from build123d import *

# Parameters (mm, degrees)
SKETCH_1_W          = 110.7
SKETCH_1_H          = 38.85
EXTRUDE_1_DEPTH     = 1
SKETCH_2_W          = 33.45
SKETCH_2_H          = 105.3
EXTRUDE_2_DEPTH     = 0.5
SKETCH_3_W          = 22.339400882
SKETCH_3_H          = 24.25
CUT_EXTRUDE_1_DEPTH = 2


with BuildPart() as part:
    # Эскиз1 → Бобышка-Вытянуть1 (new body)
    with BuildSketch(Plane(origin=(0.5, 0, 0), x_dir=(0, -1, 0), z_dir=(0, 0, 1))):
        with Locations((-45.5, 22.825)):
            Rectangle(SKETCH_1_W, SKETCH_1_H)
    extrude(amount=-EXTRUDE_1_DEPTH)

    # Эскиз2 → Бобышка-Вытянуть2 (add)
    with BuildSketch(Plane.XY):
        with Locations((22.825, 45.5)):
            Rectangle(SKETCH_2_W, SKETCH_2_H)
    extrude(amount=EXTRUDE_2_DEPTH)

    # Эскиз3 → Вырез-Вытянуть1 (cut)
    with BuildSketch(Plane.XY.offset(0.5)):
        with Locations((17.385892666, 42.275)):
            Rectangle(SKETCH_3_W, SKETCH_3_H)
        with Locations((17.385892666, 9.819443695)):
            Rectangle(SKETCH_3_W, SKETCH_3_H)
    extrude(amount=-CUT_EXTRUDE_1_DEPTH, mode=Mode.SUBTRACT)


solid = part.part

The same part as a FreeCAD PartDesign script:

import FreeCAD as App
import Part
import Sketcher
Q = App.Units.Quantity


def add_polygon(sketch, points):
    """Adds a closed chain of lines whose ends are joined by coincident constraints."""
    first, n = sketch.GeometryCount, len(points)
    for a, b in zip(points, points[1:] + points[:1]):
        sketch.addGeometry(Part.LineSegment(App.Vector(*a, 0), App.Vector(*b, 0)), False)
    for i in range(n):
        sketch.addConstraint(Sketcher.Constraint("Coincident", first + i, 2, first + (i + 1) % n, 1))

doc = App.newDocument("Part")
params = doc.addObject("Spreadsheet::Sheet", "Params")
for row, (alias, value) in enumerate([
    ("sketch1_height", "110.7 mm"),
    ("sketch1_width", "38.85 mm"),
    ("pad1_length", "1 mm"),
    ("sketch2_height", "105.3 mm"),
    ("sketch2_width", "33.45 mm"),
    ("pad2_length", "0.5 mm"),
    ("sketch3_height", "24.25 mm"),
    ("pocket1_length", "2 mm"),
], start=1):
    params.set(f"A{row}", alias)
    params.set(f"B{row}", "=" + value)
    params.setAlias(f"B{row}", alias)

body = doc.addObject("PartDesign::Body", "Body")

sketch1 = doc.addObject("Sketcher::SketchObject", "Sketch")
body.addObject(sketch1)
sketch1.AttachmentSupport = (doc.XY_Plane, [""])
sketch1.MapMode = "FlatFace"
add_polygon(sketch1, [(43, 101), (4, 101), (4, -10), (43, -10)])
sketch1.addConstraint(Sketcher.Constraint("Horizontal", 0))
sketch1.addConstraint(Sketcher.Constraint("Vertical", 1))
sketch1.addConstraint(Sketcher.Constraint("Horizontal", 2))
sketch1.addConstraint(Sketcher.Constraint("Vertical", 3))
sketch1.addConstraint(Sketcher.Constraint("DistanceY", 1, 2, 1, 1, Q("110.7 mm")))
sketch1.addConstraint(Sketcher.Constraint("DistanceX", 0, 2, 0, 1, Q("38.85 mm")))
sketch1.addConstraint(Sketcher.Constraint("DistanceX", -1, 1, 0, 2, Q("3.9 mm")))
sketch1.addConstraint(Sketcher.Constraint("DistanceY", -1, 1, 0, 2, Q("100.85 mm")))
sketch1.setExpression("Constraints[8]", "Params.sketch1_height")
sketch1.setExpression("Constraints[9]", "Params.sketch1_width")
pad1 = doc.addObject("PartDesign::Pad", "Pad")
body.addObject(pad1)
pad1.Profile = sketch1
pad1.setExpression("Length", "Params.pad1_length")
pad1.Reversed = True

sketch2 = doc.addObject("Sketcher::SketchObject", "Sketch001")
body.addObject(sketch2)
sketch2.AttachmentSupport = (doc.XY_Plane, [""])
sketch2.MapMode = "FlatFace"
add_polygon(sketch2, [(6, 98), (6, -7), (40, -7), (40, 98)])
sketch2.addConstraint(Sketcher.Constraint("Vertical", 0))
sketch2.addConstraint(Sketcher.Constraint("Horizontal", 1))
sketch2.addConstraint(Sketcher.Constraint("Vertical", 2))
sketch2.addConstraint(Sketcher.Constraint("Horizontal", 3))
sketch2.addConstraint(Sketcher.Constraint("DistanceY", 0, 2, 0, 1, Q("105.3 mm")))
sketch2.addConstraint(Sketcher.Constraint("DistanceX", 1, 1, 1, 2, Q("33.45 mm")))
sketch2.addConstraint(Sketcher.Constraint("DistanceX", -1, 1, 0, 2, Q("6.1 mm")))
sketch2.addConstraint(Sketcher.Constraint("DistanceY", 0, 2, -1, 1, Q("7.15 mm")))
sketch2.setExpression("Constraints[8]", "Params.sketch2_height")
sketch2.setExpression("Constraints[9]", "Params.sketch2_width")
pad2 = doc.addObject("PartDesign::Pad", "Pad001")
body.addObject(pad2)
pad2.Profile = sketch2
pad2.setExpression("Length", "Params.pad2_length")

sketch3 = doc.addObject("Sketcher::SketchObject", "Sketch002")
body.addObject(sketch3)
sketch3.AttachmentSupport = (doc.XY_Plane, [""])
sketch3.MapMode = "FlatFace"
sketch3.AttachmentOffset = App.Placement(App.Vector(0, 0, 0.5), App.Rotation())
add_polygon(sketch3, [(6, 54), (6, 30), (29, 30), (29, 54)])
add_polygon(sketch3, [(6, 22), (6, -2), (29, -2), (29, 22)])
sketch3.addConstraint(Sketcher.Constraint("Vertical", 0))
sketch3.addConstraint(Sketcher.Constraint("Horizontal", 1))
sketch3.addConstraint(Sketcher.Constraint("Vertical", 2))
sketch3.addConstraint(Sketcher.Constraint("Horizontal", 3))
sketch3.addConstraint(Sketcher.Constraint("Vertical", 4))
sketch3.addConstraint(Sketcher.Constraint("Horizontal", 5))
sketch3.addConstraint(Sketcher.Constraint("Vertical", 6))
sketch3.addConstraint(Sketcher.Constraint("Horizontal", 7))
sketch3.addConstraint(Sketcher.Constraint("Vertical", 3, 2, 4, 2))
sketch3.addConstraint(Sketcher.Constraint("Vertical", 2, 2, 5, 2))
sketch3.addConstraint(Sketcher.Constraint("Equal", 2, 4))
sketch3.addConstraint(Sketcher.Constraint("DistanceY", 0, 2, 0, 1, Q("24.25 mm")))
sketch3.addConstraint(Sketcher.Constraint("DistanceY", -1, 1, 2, 2, Q("54.4 mm")))
sketch3.addConstraint(Sketcher.Constraint("DistanceX", 1, 1, 1, 2, Q("22.339401 mm")))
sketch3.addConstraint(Sketcher.Constraint("DistanceX", -1, 1, 0, 2, Q("6.216192 mm")))
sketch3.addConstraint(Sketcher.Constraint("DistanceY", 4, 2, -1, 1, Q("2.305556 mm")))
sketch3.setExpression("Constraints[19]", "Params.sketch3_height")
pocket1 = doc.addObject("PartDesign::Pocket", "Pocket")
body.addObject(pocket1)
pocket1.Profile = sketch3
pocket1.setExpression("Length", "Params.pocket1_length")

doc.recompute()
